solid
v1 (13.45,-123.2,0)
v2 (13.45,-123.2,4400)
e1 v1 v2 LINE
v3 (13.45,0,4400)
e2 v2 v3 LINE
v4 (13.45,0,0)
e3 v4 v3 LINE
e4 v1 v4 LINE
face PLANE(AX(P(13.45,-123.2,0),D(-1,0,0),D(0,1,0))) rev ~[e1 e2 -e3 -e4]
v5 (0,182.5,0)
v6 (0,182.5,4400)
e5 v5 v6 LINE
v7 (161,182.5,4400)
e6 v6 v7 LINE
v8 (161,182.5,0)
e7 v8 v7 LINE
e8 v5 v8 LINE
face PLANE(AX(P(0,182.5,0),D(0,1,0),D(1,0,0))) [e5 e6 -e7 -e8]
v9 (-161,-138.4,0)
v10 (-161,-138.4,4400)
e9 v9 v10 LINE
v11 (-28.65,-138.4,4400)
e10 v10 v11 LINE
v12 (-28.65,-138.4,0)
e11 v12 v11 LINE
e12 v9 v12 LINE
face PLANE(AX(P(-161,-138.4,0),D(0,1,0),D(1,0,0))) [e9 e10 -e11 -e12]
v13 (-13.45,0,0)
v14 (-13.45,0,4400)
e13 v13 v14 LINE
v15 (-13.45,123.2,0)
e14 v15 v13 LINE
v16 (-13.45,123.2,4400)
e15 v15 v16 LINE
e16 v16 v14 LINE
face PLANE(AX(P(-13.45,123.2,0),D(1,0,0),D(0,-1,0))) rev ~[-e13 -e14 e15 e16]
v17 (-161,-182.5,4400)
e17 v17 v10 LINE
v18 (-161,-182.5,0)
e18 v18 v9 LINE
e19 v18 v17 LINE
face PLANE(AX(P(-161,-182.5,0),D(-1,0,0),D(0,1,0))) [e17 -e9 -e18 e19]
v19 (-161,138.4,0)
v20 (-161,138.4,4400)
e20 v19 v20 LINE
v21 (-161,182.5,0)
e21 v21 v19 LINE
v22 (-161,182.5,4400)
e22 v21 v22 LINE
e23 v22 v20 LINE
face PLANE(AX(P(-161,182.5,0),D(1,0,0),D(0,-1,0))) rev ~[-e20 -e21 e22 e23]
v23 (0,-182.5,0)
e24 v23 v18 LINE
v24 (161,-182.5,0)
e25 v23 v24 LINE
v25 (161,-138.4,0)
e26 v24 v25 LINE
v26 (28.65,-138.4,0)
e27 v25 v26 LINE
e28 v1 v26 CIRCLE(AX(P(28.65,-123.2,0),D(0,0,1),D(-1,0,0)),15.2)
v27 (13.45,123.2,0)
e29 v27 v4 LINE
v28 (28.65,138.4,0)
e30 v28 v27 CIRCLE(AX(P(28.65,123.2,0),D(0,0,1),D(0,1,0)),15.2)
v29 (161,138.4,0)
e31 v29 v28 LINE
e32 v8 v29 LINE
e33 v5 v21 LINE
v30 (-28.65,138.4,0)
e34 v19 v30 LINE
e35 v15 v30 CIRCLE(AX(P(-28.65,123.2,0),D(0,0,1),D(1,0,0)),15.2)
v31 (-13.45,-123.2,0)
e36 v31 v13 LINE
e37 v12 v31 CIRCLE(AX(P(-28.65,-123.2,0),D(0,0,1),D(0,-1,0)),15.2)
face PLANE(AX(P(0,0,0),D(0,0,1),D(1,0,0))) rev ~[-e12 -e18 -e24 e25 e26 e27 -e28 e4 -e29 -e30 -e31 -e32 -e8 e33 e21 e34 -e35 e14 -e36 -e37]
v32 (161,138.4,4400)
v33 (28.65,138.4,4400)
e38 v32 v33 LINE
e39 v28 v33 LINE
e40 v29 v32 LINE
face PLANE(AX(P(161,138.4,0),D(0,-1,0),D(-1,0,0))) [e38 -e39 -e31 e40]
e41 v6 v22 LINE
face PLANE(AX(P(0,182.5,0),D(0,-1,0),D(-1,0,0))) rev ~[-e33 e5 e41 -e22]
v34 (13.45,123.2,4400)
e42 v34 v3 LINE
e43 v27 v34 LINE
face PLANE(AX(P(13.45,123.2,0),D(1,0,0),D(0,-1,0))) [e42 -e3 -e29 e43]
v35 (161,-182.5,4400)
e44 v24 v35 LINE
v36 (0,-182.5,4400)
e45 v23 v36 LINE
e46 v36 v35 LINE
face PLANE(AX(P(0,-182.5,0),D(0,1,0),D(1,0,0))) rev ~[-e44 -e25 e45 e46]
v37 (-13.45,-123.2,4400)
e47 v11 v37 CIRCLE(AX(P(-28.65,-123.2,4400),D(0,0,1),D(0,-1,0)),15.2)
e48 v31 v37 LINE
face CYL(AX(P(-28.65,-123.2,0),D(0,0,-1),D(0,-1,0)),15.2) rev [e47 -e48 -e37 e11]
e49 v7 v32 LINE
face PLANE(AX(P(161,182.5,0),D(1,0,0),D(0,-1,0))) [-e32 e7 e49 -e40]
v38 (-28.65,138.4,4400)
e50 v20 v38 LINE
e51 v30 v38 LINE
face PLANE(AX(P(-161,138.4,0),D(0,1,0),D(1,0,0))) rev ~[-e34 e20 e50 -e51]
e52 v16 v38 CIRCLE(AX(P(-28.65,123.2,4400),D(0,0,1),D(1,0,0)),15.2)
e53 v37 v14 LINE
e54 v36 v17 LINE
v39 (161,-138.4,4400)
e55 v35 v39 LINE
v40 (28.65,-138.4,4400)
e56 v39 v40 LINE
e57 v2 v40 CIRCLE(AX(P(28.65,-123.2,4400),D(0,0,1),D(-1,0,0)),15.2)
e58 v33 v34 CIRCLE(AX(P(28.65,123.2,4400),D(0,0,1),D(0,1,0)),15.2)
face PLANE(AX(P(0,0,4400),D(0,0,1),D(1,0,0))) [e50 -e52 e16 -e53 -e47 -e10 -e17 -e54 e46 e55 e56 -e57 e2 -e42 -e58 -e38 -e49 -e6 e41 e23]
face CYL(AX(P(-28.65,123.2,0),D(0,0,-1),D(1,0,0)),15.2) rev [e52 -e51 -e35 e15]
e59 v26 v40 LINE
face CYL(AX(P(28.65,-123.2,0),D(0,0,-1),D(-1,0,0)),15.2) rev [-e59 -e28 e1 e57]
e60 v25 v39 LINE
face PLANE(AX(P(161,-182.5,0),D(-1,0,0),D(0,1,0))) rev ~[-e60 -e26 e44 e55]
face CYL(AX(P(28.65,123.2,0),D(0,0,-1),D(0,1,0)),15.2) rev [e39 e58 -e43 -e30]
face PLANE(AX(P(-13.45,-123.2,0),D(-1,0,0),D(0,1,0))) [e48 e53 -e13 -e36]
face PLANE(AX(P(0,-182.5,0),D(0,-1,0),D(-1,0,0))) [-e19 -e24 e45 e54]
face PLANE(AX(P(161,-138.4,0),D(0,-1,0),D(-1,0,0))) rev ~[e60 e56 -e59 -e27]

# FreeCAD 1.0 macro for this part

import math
import FreeCAD as App
import Part
import Sketcher

doc = App.newDocument("Part")
body = doc.addObject("PartDesign::Body", "Body")

sketch1 = body.newObject("Sketcher::SketchObject", "Sketch")
sketch1.AttachmentSupport = (doc.getObject("XY_Plane"), [""])
sketch1.MapMode = "FlatFace"
sketch1.addGeometry([
    Part.LineSegment(App.Vector(-161, -138, 0), App.Vector(-161, -182, 0)),
    Part.LineSegment(App.Vector(-161, -182, 0), App.Vector(161, -182, 0)),
    Part.LineSegment(App.Vector(161, -182, 0), App.Vector(161, -138, 0)),
    Part.LineSegment(App.Vector(161, -138, 0), App.Vector(29, -138, 0)),
    Part.ArcOfCircle(Part.Circle(App.Vector(29, -123, 0), App.Vector(0, 0, 1), 15), math.radians(180), math.radians(270)),
    Part.LineSegment(App.Vector(13, -123, 0), App.Vector(13, 123, 0)),
    Part.ArcOfCircle(Part.Circle(App.Vector(29, 123, 0), App.Vector(0, 0, 1), 15), math.radians(90), math.radians(180)),
    Part.LineSegment(App.Vector(29, 138, 0), App.Vector(161, 138, 0)),
    Part.LineSegment(App.Vector(161, 138, 0), App.Vector(161, 182, 0)),
    Part.LineSegment(App.Vector(161, 182, 0), App.Vector(-161, 182, 0)),
    Part.LineSegment(App.Vector(-161, 182, 0), App.Vector(-161, 138, 0)),
    Part.LineSegment(App.Vector(-161, 138, 0), App.Vector(-29, 138, 0)),
    Part.ArcOfCircle(Part.Circle(App.Vector(-29, 123, 0), App.Vector(0, 0, 1), 15), math.radians(0), math.radians(90)),
    Part.LineSegment(App.Vector(-13, 123, 0), App.Vector(-13, -123, 0)),
    Part.ArcOfCircle(Part.Circle(App.Vector(-29, -123, 0), App.Vector(0, 0, 1), 15), math.radians(-90), math.radians(0)),
    Part.LineSegment(App.Vector(-29, -138, 0), App.Vector(-161, -138, 0)),
], False)
sketch1.addConstraint([
    Sketcher.Constraint("Coincident", 0, 2, 1, 1),
    Sketcher.Constraint("Coincident", 1, 2, 2, 1),
    Sketcher.Constraint("Coincident", 2, 2, 3, 1),
    Sketcher.Constraint("Tangent", 3, 2, 4, 2),
    Sketcher.Constraint("Tangent", 4, 1, 5, 1),
    Sketcher.Constraint("Tangent", 5, 2, 6, 2),
    Sketcher.Constraint("Tangent", 6, 1, 7, 1),
    Sketcher.Constraint("Coincident", 7, 2, 8, 1),
    Sketcher.Constraint("Coincident", 8, 2, 9, 1),
    Sketcher.Constraint("Coincident", 9, 2, 10, 1),
    Sketcher.Constraint("Coincident", 10, 2, 11, 1),
    Sketcher.Constraint("Tangent", 11, 2, 12, 2),
    Sketcher.Constraint("Tangent", 12, 1, 13, 1),
    Sketcher.Constraint("Tangent", 13, 2, 14, 2),
    Sketcher.Constraint("Tangent", 14, 1, 15, 1),
    Sketcher.Constraint("Coincident", 15, 2, 0, 1),
    Sketcher.Constraint("Vertical", 0),
    Sketcher.Constraint("Horizontal", 1),
    Sketcher.Constraint("Vertical", 2),
    Sketcher.Constraint("Horizontal", 3),
    Sketcher.Constraint("Vertical", 5),
    Sketcher.Constraint("Horizontal", 7),
    Sketcher.Constraint("Vertical", 8),
    Sketcher.Constraint("Horizontal", 9),
    Sketcher.Constraint("Vertical", 10),
    Sketcher.Constraint("Horizontal", 11),
    Sketcher.Constraint("Vertical", 13),
    Sketcher.Constraint("Horizontal", 15),
    Sketcher.Constraint("Equal", 4, 6),
    Sketcher.Constraint("Equal", 6, 12),
    Sketcher.Constraint("Equal", 12, 14),
    Sketcher.Constraint("Symmetric", 4, 3, 12, 3, -1, 1),
    Sketcher.Constraint("Symmetric", 0, 2, 8, 2, -1, 1),
    Sketcher.Constraint("Symmetric", 7, 2, 10, 2, -2),
    Sketcher.Constraint("Symmetric", 2, 2, 15, 2, -2),
    Sketcher.Constraint("Radius", 4, 15.2),
    Sketcher.Constraint("DistanceY", 0, 2, 0, 1, 44.1),
    Sketcher.Constraint("DistanceX", 0, 2, -1, 1, 161.0),
    Sketcher.Constraint("DistanceY", 0, 2, -1, 1, 182.5),
    Sketcher.Constraint("DistanceX", -1, 1, 4, 1, 13.45),
])
pad1 = body.newObject("PartDesign::Pad", "Pad")
pad1.Profile = sketch1
pad1.Length = 4400

doc.recompute()
